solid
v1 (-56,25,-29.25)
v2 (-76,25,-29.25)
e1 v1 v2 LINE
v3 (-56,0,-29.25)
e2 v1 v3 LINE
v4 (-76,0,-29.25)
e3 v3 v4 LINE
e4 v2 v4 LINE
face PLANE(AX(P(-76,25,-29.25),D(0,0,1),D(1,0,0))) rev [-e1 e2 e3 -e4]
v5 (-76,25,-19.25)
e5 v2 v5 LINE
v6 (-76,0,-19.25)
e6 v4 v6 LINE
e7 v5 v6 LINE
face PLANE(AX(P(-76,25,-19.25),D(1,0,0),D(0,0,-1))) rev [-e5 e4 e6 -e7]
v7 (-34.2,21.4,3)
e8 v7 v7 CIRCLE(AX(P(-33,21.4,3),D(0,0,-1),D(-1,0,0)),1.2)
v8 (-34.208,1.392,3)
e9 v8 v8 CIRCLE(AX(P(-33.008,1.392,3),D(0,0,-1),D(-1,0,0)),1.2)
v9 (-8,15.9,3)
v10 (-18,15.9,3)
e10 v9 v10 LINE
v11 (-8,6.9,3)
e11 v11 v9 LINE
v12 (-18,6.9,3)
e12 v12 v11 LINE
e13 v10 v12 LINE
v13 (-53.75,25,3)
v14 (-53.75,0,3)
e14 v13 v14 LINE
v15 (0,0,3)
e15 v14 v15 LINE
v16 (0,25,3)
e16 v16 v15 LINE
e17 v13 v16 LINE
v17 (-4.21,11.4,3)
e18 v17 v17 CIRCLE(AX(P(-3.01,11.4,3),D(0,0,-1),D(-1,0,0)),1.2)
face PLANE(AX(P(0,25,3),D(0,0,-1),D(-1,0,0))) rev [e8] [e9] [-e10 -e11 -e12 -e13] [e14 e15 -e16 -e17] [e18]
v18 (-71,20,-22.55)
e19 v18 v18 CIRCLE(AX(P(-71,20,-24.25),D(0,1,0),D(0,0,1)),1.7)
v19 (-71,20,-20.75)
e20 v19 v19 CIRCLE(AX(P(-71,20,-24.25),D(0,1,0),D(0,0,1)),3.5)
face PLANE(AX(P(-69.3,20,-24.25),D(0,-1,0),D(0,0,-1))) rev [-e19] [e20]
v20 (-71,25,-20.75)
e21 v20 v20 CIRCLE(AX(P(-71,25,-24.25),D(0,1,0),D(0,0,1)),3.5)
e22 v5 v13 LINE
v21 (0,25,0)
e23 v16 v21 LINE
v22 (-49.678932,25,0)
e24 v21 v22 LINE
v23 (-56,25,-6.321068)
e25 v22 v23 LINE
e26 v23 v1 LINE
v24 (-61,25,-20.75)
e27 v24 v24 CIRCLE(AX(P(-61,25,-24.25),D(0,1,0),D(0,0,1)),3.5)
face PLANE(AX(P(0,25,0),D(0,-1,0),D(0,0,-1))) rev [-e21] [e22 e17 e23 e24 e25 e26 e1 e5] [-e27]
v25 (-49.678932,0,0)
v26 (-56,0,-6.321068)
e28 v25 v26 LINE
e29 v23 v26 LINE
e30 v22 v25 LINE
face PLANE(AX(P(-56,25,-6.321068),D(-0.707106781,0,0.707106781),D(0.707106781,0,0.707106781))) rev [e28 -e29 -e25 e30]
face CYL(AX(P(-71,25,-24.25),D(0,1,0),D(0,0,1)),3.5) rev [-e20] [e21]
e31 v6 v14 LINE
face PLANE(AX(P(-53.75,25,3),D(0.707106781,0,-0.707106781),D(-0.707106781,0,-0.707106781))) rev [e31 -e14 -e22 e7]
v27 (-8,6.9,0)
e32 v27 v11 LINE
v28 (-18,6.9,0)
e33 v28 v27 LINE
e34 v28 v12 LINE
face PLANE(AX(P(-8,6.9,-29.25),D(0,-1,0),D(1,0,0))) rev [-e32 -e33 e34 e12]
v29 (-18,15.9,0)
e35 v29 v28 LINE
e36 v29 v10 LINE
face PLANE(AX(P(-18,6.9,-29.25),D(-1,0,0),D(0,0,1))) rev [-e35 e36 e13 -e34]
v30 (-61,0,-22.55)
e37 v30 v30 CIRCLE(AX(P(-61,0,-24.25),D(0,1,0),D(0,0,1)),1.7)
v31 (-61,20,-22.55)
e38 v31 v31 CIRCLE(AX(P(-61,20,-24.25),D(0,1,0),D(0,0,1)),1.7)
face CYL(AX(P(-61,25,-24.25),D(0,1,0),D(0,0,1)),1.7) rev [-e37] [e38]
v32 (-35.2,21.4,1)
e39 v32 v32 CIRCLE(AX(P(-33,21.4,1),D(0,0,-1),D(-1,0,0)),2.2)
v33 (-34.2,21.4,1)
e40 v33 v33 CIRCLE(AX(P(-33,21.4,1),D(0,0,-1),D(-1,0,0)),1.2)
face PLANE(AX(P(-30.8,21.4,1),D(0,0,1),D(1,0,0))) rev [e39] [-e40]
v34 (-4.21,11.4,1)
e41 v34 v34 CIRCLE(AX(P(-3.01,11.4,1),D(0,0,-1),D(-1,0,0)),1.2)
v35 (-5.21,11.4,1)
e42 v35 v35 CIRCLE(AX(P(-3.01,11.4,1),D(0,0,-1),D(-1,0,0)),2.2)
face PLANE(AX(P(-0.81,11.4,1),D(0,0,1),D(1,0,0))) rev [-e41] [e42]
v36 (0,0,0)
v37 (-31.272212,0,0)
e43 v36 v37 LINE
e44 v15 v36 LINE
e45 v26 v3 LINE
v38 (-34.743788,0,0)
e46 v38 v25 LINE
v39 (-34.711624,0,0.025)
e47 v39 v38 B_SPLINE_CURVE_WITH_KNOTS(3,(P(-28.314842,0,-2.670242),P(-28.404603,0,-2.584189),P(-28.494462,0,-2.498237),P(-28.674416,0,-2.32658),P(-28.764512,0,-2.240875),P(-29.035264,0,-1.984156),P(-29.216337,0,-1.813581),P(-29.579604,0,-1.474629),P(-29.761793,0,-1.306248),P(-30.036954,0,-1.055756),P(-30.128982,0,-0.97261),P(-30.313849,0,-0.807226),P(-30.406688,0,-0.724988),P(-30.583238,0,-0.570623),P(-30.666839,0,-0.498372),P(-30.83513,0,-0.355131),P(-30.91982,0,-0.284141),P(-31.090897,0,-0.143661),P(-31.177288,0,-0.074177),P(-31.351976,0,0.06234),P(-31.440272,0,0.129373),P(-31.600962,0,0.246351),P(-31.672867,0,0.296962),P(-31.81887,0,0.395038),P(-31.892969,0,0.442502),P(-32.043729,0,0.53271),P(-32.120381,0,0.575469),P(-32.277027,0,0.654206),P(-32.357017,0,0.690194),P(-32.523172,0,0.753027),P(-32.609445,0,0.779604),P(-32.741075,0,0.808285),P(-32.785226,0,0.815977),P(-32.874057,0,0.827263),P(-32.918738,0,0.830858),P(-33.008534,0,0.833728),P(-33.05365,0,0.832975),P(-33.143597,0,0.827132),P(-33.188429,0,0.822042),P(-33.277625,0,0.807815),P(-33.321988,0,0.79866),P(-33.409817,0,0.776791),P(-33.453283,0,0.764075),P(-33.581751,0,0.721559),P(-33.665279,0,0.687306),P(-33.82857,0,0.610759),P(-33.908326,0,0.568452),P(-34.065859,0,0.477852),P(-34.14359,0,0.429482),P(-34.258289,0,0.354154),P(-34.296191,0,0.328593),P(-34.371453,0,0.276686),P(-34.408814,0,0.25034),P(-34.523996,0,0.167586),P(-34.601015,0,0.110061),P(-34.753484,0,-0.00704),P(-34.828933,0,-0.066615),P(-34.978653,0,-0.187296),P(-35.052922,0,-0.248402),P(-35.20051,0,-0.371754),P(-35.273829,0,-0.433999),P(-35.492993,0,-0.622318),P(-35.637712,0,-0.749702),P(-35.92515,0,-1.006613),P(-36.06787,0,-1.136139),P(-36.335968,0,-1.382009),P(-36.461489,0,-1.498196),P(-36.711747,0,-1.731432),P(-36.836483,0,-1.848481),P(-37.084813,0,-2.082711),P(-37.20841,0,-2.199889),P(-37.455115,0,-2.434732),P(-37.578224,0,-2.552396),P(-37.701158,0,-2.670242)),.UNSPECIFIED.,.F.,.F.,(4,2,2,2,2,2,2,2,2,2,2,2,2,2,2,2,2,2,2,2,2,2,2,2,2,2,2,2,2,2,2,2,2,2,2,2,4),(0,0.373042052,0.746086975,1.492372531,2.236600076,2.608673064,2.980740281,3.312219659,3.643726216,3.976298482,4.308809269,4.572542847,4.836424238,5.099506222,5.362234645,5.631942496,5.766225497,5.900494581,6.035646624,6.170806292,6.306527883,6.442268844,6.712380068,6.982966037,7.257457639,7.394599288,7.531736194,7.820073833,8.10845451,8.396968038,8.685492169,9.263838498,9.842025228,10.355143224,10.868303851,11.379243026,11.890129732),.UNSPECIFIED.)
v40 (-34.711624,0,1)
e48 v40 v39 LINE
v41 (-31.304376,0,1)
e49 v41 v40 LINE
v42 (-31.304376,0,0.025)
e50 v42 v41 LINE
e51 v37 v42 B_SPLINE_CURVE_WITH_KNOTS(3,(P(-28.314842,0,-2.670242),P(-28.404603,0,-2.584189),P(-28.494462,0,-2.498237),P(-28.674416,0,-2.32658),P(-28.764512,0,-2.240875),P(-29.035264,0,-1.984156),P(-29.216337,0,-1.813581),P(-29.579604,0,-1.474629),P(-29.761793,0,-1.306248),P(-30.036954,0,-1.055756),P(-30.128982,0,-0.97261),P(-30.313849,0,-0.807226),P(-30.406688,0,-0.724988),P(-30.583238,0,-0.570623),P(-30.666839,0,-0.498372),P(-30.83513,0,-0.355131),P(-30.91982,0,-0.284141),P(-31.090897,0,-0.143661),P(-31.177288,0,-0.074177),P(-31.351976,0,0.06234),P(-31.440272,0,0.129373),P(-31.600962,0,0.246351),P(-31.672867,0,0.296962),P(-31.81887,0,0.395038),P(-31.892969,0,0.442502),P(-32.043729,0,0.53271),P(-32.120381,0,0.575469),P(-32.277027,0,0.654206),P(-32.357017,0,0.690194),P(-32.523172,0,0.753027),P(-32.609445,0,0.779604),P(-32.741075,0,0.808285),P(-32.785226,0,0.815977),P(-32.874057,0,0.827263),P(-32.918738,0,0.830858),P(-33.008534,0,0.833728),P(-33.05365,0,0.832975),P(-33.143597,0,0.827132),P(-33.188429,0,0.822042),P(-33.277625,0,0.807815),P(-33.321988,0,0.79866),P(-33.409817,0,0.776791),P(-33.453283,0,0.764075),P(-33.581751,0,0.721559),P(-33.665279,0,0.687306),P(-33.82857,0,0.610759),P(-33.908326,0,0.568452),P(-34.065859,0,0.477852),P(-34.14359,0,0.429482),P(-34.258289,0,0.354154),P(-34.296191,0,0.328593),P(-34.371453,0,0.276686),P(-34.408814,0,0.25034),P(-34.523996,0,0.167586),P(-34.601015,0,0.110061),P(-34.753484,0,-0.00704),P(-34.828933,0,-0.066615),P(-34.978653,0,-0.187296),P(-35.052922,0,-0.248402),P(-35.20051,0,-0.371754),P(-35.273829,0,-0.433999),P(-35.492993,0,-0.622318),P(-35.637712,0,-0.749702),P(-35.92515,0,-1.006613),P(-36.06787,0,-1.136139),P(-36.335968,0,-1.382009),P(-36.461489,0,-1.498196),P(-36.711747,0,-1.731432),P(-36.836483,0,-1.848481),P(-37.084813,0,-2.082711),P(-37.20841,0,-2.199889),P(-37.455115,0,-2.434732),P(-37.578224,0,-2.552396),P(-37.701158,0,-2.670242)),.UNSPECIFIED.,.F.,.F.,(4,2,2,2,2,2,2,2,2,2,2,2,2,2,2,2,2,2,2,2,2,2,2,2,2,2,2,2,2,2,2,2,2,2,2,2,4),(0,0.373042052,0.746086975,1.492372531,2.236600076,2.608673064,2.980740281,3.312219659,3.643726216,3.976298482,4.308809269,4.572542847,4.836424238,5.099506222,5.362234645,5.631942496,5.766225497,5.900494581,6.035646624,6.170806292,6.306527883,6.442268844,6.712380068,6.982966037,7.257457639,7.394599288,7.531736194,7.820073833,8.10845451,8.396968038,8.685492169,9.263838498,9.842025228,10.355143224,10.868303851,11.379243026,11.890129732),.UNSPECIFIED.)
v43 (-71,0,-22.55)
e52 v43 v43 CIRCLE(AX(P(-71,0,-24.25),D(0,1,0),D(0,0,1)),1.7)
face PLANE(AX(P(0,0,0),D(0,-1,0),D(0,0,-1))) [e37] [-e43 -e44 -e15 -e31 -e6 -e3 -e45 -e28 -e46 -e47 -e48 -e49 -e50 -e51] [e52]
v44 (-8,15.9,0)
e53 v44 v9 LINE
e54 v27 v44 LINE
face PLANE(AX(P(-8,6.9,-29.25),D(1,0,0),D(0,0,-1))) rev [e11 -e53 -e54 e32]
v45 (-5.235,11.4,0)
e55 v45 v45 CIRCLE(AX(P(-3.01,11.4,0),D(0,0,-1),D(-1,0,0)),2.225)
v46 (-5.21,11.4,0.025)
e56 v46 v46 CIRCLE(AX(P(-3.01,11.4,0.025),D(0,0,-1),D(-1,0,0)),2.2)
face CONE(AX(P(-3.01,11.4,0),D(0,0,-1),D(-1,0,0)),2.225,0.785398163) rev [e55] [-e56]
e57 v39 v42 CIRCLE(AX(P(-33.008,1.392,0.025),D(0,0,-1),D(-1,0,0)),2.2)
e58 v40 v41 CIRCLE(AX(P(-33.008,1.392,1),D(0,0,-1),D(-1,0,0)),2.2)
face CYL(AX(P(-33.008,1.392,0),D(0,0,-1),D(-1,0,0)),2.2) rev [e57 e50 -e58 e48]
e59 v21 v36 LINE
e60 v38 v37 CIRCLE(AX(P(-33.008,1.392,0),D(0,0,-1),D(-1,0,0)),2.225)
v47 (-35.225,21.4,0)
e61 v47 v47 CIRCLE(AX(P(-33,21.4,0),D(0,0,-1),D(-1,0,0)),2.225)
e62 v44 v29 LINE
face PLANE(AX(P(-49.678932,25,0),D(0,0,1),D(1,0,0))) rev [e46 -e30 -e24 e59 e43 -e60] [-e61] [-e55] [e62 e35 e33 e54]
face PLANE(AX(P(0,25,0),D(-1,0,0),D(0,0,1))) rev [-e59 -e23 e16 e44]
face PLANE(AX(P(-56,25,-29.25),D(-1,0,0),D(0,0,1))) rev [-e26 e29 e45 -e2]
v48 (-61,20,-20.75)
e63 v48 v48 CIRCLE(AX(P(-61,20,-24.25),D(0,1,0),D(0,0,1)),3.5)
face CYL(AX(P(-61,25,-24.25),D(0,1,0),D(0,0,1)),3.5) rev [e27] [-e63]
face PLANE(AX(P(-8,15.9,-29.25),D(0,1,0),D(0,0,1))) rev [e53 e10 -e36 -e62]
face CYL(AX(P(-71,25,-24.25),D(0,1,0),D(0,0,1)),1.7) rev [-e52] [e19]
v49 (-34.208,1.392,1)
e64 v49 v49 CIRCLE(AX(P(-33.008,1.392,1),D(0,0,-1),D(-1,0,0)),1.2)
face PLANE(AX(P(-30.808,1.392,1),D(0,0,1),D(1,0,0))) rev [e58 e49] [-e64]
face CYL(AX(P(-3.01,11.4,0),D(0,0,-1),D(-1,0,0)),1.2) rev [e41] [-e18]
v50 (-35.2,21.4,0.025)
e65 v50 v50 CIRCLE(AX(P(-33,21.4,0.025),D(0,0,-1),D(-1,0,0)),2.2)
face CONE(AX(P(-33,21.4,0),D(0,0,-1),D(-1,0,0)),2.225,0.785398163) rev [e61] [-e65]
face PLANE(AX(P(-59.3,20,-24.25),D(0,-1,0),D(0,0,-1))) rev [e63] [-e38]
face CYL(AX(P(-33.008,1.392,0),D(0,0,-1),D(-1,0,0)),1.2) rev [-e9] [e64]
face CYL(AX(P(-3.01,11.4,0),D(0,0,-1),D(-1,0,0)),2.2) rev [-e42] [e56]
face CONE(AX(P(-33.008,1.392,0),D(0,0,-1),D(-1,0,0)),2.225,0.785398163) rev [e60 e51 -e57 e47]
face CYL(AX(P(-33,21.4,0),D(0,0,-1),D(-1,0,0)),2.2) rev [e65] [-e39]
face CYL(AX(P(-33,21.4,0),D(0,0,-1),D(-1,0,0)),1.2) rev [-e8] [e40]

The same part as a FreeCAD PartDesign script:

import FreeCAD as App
import Part
import Sketcher
from FreeCAD import Vector
Q = App.Units.Quantity

doc = App.newDocument("Part")
body = doc.addObject("PartDesign::Body", "Body")

# Sketch on XZ plane
sketch1 = doc.addObject("Sketcher::SketchObject", "Sketch")
body.addObject(sketch1)
sketch1.AttachmentSupport = (doc.XZ_Plane, [""])
sketch1.MapMode = "FlatFace"
sketch1.addGeometry([
    Part.LineSegment(Vector(0, 3, 0), Vector(0, 0, 0)),  # 0
    Part.LineSegment(Vector(0, 0, 0), Vector(-49.7, 0, 0)),  # 1
    Part.LineSegment(Vector(-49.7, 0, 0), Vector(-56, -6.3, 0)),  # 2
    Part.LineSegment(Vector(-56, -6.3, 0), Vector(-56, -29.2, 0)),  # 3
    Part.LineSegment(Vector(-56, -29.2, 0), Vector(-76, -29.2, 0)),  # 4
    Part.LineSegment(Vector(-76, -29.2, 0), Vector(-76, -19.2, 0)),  # 5
    Part.LineSegment(Vector(-76, -19.2, 0), Vector(-53.8, 3, 0)),  # 6
    Part.LineSegment(Vector(-53.8, 3, 0), Vector(0, 3, 0)),  # 7
], False)
sketch1.addConstraint([
    Sketcher.Constraint("Coincident", 0, 2, 1, 1),
    Sketcher.Constraint("Coincident", 1, 2, 2, 1),
    Sketcher.Constraint("Coincident", 2, 2, 3, 1),
    Sketcher.Constraint("Coincident", 3, 2, 4, 1),
    Sketcher.Constraint("Coincident", 4, 2, 5, 1),
    Sketcher.Constraint("Coincident", 5, 2, 6, 1),
    Sketcher.Constraint("Coincident", 6, 2, 7, 1),
    Sketcher.Constraint("Coincident", 7, 2, 0, 1),
    Sketcher.Constraint("Vertical", 0),
    Sketcher.Constraint("Horizontal", 1),
    Sketcher.Constraint("Vertical", 3),
    Sketcher.Constraint("Horizontal", 4),
    Sketcher.Constraint("Vertical", 5),
    Sketcher.Constraint("Horizontal", 7),
    Sketcher.Constraint("Coincident", 0, 2, -1, 1),
    Sketcher.Constraint("Parallel", 2, 6),
    Sketcher.Constraint("DistanceX", 4, 2, 4, 1, Q("20 mm")),
    Sketcher.Constraint("DistanceY", 0, 2, 0, 1, Q("3 mm")),
    Sketcher.Constraint("DistanceY", 5, 1, 5, 2, Q("10 mm")),
    Sketcher.Constraint("Angle", 2, Q("-135 deg")),
    Sketcher.Constraint("DistanceX", 2, 2, -1, 1, Q("56 mm")),
    Sketcher.Constraint("DistanceX", 7, 1, 7, 2, Q("53.75 mm")),
    Sketcher.Constraint("Distance", 2, Q("8.93934 mm")),
])
pad1 = doc.addObject("PartDesign::Pad", "Pad")
body.addObject(pad1)
pad1.Profile = sketch1
pad1.Length = 25
pad1.Reversed = True

# Sketch on XY plane
sketch2 = doc.addObject("Sketcher::SketchObject", "Sketch001")
body.addObject(sketch2)
sketch2.AttachmentSupport = (doc.XY_Plane, [""])
sketch2.MapMode = "FlatFace"
sketch2.AttachmentOffset = App.Placement(Vector(0, 0, 3), App.Rotation())
sketch2.addGeometry([
    Part.LineSegment(Vector(-18, 16, 0), Vector(-18, 7, 0)),
    Part.LineSegment(Vector(-18, 7, 0), Vector(-8, 7, 0)),
    Part.LineSegment(Vector(-8, 7, 0), Vector(-8, 16, 0)),
    Part.LineSegment(Vector(-8, 16, 0), Vector(-18, 16, 0)),
], False)
sketch2.addConstraint([
    Sketcher.Constraint("Coincident", 0, 2, 1, 1),
    Sketcher.Constraint("Coincident", 1, 2, 2, 1),
    Sketcher.Constraint("Coincident", 2, 2, 3, 1),
    Sketcher.Constraint("Coincident", 3, 2, 0, 1),
    Sketcher.Constraint("Vertical", 0),
    Sketcher.Constraint("Horizontal", 1),
    Sketcher.Constraint("Vertical", 2),
    Sketcher.Constraint("Horizontal", 3),
    Sketcher.Constraint("DistanceX", 1, 1, 1, 2, Q("10 mm")),
    Sketcher.Constraint("DistanceY", 0, 2, 0, 1, Q("9 mm")),
    Sketcher.Constraint("DistanceX", 0, 2, -1, 1, Q("18 mm")),
    Sketcher.Constraint("DistanceY", -1, 1, 0, 2, Q("6.9 mm")),
])
pocket1 = doc.addObject("PartDesign::Pocket", "Pocket")
body.addObject(pocket1)
pocket1.Profile = sketch2
pocket1.Type = "ThroughAll"

# Sketch on XZ plane
sketch3 = doc.addObject("Sketcher::SketchObject", "Sketch002")
body.addObject(sketch3)
sketch3.AttachmentSupport = (doc.XZ_Plane, [""])
sketch3.MapMode = "FlatFace"
sketch3.AttachmentOffset = App.Placement(Vector(0, 0, -25), App.Rotation())
sketch3.addGeometry([
    Part.Circle(Vector(-71, -24.2, 0), Vector(0, 0, 1), 1.7),
    Part.Circle(Vector(-61, -24.2, 0), Vector(0, 0, 1), 1.7),
], False)
sketch3.addConstraint([
    Sketcher.Constraint("Equal", 0, 1),
    Sketcher.Constraint("Horizontal", 0, 3, 1, 3),
    Sketcher.Constraint("Diameter", 0, Q("3.4 mm")),
    Sketcher.Constraint("DistanceX", 0, 3, -1, 1, Q("71 mm")),
    Sketcher.Constraint("DistanceX", 1, 3, -1, 1, Q("61 mm")),
    Sketcher.Constraint("DistanceY", 0, 3, -1, 1, Q("24.25 mm")),
])
doc.recompute()
hole = doc.addObject("PartDesign::Hole", "Hole")
body.addObject(hole)
hole.Profile = sketch3
hole.ThreadType = "None"
hole.Diameter = 3.4
hole.DepthType = "ThroughAll"
hole.HoleCutType = "Counterbore"
hole.HoleCutDiameter = 7
hole.HoleCutDepth = 5
hole.Reversed = True

# Sketch on YZ plane
sketch4 = doc.addObject("Sketcher::SketchObject", "Sketch003")
body.addObject(sketch4)
sketch4.AttachmentSupport = (doc.YZ_Plane, [""])
sketch4.MapMode = "FlatFace"
sketch4.AttachmentOffset = App.Placement(Vector(0, 0, -33), App.Rotation())
sketch4.addGeometry([
    Part.LineSegment(Vector(21.4, 3, 0), Vector(21.4, 0, 0)),  # 0
    Part.LineSegment(Vector(21.4, 0, 0), Vector(23.625, 0, 0)),  # 1
    Part.LineSegment(Vector(23.625, 0, 0), Vector(23.6, 0.025, 0)),  # 2
    Part.LineSegment(Vector(23.6, 0.025, 0), Vector(23.6, 1, 0)),  # 3
    Part.LineSegment(Vector(23.6, 1, 0), Vector(22.6, 1, 0)),  # 4
    Part.LineSegment(Vector(22.6, 1, 0), Vector(22.6, 3, 0)),  # 5
    Part.LineSegment(Vector(22.6, 3, 0), Vector(21.4, 3, 0)),  # 6
], False)
sketch4.addGeometry(Part.LineSegment(Vector(21.4, 0, 0), Vector(21.4, 3, 0)), True)  # axis
sketch4.addConstraint([
    Sketcher.Constraint("Coincident", 0, 2, 1, 1),
    Sketcher.Constraint("Coincident", 1, 2, 2, 1),
    Sketcher.Constraint("Coincident", 2, 2, 3, 1),
    Sketcher.Constraint("Coincident", 3, 2, 4, 1),
    Sketcher.Constraint("Coincident", 4, 2, 5, 1),
    Sketcher.Constraint("Coincident", 5, 2, 6, 1),
    Sketcher.Constraint("Coincident", 6, 2, 0, 1),
    Sketcher.Constraint("Vertical", 0),
    Sketcher.Constraint("Horizontal", 1),
    Sketcher.Constraint("Vertical", 3),
    Sketcher.Constraint("Horizontal", 4),
    Sketcher.Constraint("Vertical", 5),
    Sketcher.Constraint("Horizontal", 6),
    Sketcher.Constraint("Vertical", 7),
    Sketcher.Constraint("Coincident", 7, 1, 0, 2),
    Sketcher.Constraint("PointOnObject", 0, 2, -1),
    Sketcher.Constraint("Horizontal", 5, 2, 7, 2),
    Sketcher.Constraint("DistanceX", 4, 2, 4, 1, Q("1 mm")),
    Sketcher.Constraint("DistanceY", 0, 2, 0, 1, Q("3 mm")),
    Sketcher.Constraint("DistanceY", 5, 1, 5, 2, Q("2 mm")),
    Sketcher.Constraint("Angle", 2, Q("135 deg")),
    Sketcher.Constraint("DistanceX", 6, 2, 6, 1, Q("1.2 mm")),
    Sketcher.Constraint("DistanceX", -1, 1, 0, 2, Q("21.4 mm")),
    Sketcher.Constraint("DistanceX", 1, 1, 1, 2, Q("2.225 mm")),
])
groove = doc.addObject("PartDesign::Groove", "Groove")
body.addObject(groove)
groove.Profile = sketch4
groove.ReferenceAxis = (sketch4, ["Axis0"])
groove.Angle = 360
doc.recompute()

datumline = doc.addObject("PartDesign::Line", "DatumLine")
body.addObject(datumline)
datumline.Placement = App.Placement(Vector(0, 0, 0), App.Rotation(Vector(0, 0, 1), Vector(-0.00039984, -0.99999992, 0)))
linearpattern = doc.addObject("PartDesign::LinearPattern", "LinearPattern")
body.addObject(linearpattern)
linearpattern.Originals = [groove]
linearpattern.Direction = (datumline, [""])
linearpattern.Mode = "offset"
linearpattern.Offset = 20.008002
linearpattern.Occurrences = 2
body.Tip = linearpattern
doc.recompute()

datumline2 = doc.addObject("PartDesign::Line", "DatumLine001")
body.addObject(datumline2)
datumline2.Placement = App.Placement(Vector(0, 0, 0), App.Rotation(Vector(0, 0, 1), Vector(0.948651661, -0.316322661, 0)))
linearpattern2 = doc.addObject("PartDesign::LinearPattern", "LinearPattern001")
body.addObject(linearpattern2)
linearpattern2.Originals = [groove]
linearpattern2.Direction = (datumline2, [""])
linearpattern2.Mode = "offset"
linearpattern2.Offset = 31.61329
linearpattern2.Occurrences = 2
body.Tip = linearpattern2

doc.recompute()
